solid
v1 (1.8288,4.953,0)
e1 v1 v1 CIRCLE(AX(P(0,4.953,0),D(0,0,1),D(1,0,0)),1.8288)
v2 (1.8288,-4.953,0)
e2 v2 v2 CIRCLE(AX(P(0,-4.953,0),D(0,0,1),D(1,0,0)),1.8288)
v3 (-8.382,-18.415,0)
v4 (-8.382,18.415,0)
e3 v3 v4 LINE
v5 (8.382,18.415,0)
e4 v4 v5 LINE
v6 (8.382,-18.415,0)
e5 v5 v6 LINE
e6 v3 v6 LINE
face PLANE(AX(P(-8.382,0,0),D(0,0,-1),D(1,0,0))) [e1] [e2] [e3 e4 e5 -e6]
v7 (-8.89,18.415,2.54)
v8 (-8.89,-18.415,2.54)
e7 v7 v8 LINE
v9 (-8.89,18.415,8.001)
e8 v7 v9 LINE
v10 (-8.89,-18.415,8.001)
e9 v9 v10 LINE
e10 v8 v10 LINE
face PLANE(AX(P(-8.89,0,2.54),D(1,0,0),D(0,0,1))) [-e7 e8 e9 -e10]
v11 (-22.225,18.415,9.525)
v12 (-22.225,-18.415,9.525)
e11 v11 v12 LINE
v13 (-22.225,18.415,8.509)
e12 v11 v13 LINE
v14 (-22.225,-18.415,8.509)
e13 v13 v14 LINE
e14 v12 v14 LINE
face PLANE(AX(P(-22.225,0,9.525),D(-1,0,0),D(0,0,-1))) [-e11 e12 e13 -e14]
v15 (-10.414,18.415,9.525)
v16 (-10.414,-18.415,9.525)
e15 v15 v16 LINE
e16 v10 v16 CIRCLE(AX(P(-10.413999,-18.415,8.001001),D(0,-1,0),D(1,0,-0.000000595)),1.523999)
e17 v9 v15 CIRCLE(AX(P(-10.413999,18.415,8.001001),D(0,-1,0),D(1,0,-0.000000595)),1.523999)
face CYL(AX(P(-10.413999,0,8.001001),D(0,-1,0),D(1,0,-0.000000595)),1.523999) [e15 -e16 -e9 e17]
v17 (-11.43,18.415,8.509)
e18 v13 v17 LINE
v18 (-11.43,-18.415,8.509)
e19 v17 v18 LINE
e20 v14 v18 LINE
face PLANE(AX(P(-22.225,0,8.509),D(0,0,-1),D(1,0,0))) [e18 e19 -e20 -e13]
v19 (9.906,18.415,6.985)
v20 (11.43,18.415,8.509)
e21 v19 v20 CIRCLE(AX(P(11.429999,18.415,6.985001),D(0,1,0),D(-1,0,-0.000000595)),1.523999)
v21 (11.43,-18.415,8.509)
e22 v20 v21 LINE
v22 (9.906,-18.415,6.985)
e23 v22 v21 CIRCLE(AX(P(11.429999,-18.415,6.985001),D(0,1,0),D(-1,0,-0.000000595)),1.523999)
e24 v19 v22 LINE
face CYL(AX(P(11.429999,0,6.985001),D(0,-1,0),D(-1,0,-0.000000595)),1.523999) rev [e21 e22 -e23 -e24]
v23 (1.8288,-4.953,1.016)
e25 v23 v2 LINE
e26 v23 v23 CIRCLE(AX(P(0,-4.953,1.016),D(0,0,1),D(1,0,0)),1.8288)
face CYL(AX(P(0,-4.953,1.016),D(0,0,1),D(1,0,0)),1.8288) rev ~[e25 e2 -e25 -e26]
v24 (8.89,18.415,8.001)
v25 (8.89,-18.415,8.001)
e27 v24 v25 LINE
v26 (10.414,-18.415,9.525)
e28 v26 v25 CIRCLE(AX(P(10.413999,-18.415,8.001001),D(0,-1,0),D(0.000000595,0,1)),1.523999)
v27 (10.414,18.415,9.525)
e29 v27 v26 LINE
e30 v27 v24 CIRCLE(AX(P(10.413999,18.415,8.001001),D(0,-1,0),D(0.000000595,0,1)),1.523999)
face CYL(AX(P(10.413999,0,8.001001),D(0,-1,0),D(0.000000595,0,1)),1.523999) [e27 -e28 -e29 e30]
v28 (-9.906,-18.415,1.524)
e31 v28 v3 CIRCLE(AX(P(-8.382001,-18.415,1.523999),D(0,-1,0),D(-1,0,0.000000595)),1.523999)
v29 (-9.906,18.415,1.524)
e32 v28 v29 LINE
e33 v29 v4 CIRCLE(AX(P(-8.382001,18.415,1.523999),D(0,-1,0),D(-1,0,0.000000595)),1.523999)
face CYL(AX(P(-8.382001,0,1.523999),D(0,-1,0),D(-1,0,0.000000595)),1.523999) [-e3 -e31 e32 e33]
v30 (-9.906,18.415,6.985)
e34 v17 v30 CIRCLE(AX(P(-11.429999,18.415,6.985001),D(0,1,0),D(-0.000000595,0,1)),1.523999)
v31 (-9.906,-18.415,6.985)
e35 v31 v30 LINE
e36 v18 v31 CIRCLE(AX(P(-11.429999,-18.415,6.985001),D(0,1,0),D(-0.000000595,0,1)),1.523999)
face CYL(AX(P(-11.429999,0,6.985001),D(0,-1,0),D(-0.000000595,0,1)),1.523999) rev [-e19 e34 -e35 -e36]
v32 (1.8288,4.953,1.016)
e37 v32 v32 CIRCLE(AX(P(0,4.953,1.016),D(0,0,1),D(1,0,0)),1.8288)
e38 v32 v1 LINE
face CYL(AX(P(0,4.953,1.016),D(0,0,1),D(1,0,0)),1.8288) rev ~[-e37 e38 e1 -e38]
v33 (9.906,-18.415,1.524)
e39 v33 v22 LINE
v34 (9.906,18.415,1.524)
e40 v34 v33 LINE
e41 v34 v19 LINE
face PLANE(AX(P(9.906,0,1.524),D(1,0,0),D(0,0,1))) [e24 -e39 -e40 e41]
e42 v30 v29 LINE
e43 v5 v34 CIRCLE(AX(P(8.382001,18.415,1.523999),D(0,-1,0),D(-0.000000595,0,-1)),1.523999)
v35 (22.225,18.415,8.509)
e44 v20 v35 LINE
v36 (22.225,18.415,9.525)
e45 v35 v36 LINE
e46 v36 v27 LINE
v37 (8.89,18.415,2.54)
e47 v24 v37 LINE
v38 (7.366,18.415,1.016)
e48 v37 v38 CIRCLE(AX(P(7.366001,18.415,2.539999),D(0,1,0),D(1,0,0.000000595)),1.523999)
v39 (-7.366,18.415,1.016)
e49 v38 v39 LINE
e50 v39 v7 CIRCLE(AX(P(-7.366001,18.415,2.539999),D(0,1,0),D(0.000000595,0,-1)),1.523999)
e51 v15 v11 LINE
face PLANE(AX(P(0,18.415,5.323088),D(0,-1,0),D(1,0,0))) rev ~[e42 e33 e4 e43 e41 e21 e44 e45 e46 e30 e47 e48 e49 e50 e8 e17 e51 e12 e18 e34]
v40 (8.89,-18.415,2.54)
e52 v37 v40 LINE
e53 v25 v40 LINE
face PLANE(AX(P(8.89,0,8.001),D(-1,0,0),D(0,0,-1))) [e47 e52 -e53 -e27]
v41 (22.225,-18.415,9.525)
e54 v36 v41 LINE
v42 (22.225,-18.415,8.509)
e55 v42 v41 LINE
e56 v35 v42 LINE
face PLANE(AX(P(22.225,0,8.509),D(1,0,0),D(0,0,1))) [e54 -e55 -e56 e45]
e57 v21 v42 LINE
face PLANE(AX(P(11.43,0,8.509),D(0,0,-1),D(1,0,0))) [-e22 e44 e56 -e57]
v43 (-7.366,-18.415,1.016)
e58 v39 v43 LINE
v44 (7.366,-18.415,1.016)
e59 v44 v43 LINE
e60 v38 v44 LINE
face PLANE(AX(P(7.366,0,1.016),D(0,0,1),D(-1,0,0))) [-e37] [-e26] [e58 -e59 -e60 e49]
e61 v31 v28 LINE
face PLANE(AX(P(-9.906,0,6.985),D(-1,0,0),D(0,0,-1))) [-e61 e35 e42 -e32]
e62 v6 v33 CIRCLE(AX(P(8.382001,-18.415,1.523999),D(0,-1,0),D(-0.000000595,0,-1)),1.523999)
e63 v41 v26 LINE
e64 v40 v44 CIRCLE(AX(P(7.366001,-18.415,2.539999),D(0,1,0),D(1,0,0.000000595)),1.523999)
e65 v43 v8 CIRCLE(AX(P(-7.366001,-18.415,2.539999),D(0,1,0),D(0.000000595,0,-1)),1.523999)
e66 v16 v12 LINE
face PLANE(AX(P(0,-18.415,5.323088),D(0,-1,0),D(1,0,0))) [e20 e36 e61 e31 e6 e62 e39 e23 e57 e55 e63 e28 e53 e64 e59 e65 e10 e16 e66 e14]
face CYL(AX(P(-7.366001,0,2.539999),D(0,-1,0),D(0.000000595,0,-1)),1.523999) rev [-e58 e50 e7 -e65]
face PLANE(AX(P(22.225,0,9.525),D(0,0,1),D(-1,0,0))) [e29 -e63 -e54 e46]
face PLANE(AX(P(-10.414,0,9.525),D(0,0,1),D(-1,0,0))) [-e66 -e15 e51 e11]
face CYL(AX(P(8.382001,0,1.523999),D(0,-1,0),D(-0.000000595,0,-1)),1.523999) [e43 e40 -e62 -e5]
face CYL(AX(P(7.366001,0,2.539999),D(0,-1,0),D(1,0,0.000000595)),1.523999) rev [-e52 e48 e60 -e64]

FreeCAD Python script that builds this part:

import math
import FreeCAD as App
import Part
import Sketcher

V = App.Vector
Q = App.Units.Quantity

doc = App.newDocument("Part")
body = doc.addObject("PartDesign::Body", "Body")

sketch1 = doc.addObject("Sketcher::SketchObject", "Sketch")
body.addObject(sketch1)
sketch1.AttachmentSupport = (doc.XZ_Plane, [""])
sketch1.MapMode = "FlatFace"
sketch1.addGeometry([
    Part.LineSegment(V(-8.4, 0, 0), V(8.4, 0, 0)),
    Part.ArcOfCircle(Part.Circle(V(8.4, 1.5, 0), V(0, 0, 1), 1.5), math.radians(-90), math.radians(0)),
    Part.LineSegment(V(9.9, 1.5, 0), V(9.9, 7, 0)),
    Part.ArcOfCircle(Part.Circle(V(11.4, 7, 0), V(0, 0, 1), 1.5), math.radians(90), math.radians(180)),
    Part.LineSegment(V(11.4, 8.5, 0), V(22.2, 8.5, 0)),
    Part.LineSegment(V(22.2, 8.5, 0), V(22.2, 9.5, 0)),
    Part.LineSegment(V(22.2, 9.5, 0), V(10.4, 9.5, 0)),
    Part.ArcOfCircle(Part.Circle(V(10.4, 8, 0), V(0, 0, 1), 1.5), math.radians(90), math.radians(180)),
    Part.LineSegment(V(8.9, 8, 0), V(8.9, 2.5, 0)),
    Part.ArcOfCircle(Part.Circle(V(7.4, 2.5, 0), V(0, 0, 1), 1.5), math.radians(-90), math.radians(0)),
    Part.LineSegment(V(7.4, 1, 0), V(-7.4, 1, 0)),
    Part.ArcOfCircle(Part.Circle(V(-7.4, 2.5, 0), V(0, 0, 1), 1.5), math.radians(180), math.radians(270)),
    Part.LineSegment(V(-8.9, 2.5, 0), V(-8.9, 8, 0)),
    Part.ArcOfCircle(Part.Circle(V(-10.4, 8, 0), V(0, 0, 1), 1.5), math.radians(0), math.radians(90)),
    Part.LineSegment(V(-10.4, 9.5, 0), V(-22.2, 9.5, 0)),
    Part.LineSegment(V(-22.2, 9.5, 0), V(-22.2, 8.5, 0)),
    Part.LineSegment(V(-22.2, 8.5, 0), V(-11.4, 8.5, 0)),
    Part.ArcOfCircle(Part.Circle(V(-11.4, 7, 0), V(0, 0, 1), 1.5), math.radians(0), math.radians(90)),
    Part.LineSegment(V(-9.9, 7, 0), V(-9.9, 1.5, 0)),
    Part.ArcOfCircle(Part.Circle(V(-8.4, 1.5, 0), V(0, 0, 1), 1.5), math.radians(180), math.radians(270)),
], False)
sketch1.addConstraint([
    Sketcher.Constraint("Tangent", 0, 2, 1, 1),
    Sketcher.Constraint("Tangent", 1, 2, 2, 1),
    Sketcher.Constraint("Tangent", 2, 2, 3, 2),
    Sketcher.Constraint("Tangent", 3, 1, 4, 1),
    Sketcher.Constraint("Coincident", 4, 2, 5, 1),
    Sketcher.Constraint("Coincident", 5, 2, 6, 1),
    Sketcher.Constraint("Tangent", 6, 2, 7, 1),
    Sketcher.Constraint("Tangent", 7, 2, 8, 1),
    Sketcher.Constraint("Tangent", 8, 2, 9, 2),
    Sketcher.Constraint("Tangent", 9, 1, 10, 1),
    Sketcher.Constraint("Tangent", 10, 2, 11, 2),
    Sketcher.Constraint("Tangent", 11, 1, 12, 1),
    Sketcher.Constraint("Tangent", 12, 2, 13, 1),
    Sketcher.Constraint("Tangent", 13, 2, 14, 1),
    Sketcher.Constraint("Coincident", 14, 2, 15, 1),
    Sketcher.Constraint("Coincident", 15, 2, 16, 1),
    Sketcher.Constraint("Tangent", 16, 2, 17, 2),
    Sketcher.Constraint("Tangent", 17, 1, 18, 1),
    Sketcher.Constraint("Tangent", 18, 2, 19, 1),
    Sketcher.Constraint("Tangent", 19, 2, 0, 1),
    Sketcher.Constraint("Horizontal", 0),
    Sketcher.Constraint("Vertical", 2),
    Sketcher.Constraint("Horizontal", 4),
    Sketcher.Constraint("Vertical", 5),
    Sketcher.Constraint("Horizontal", 6),
    Sketcher.Constraint("Vertical", 8),
    Sketcher.Constraint("Horizontal", 10),
    Sketcher.Constraint("Vertical", 12),
    Sketcher.Constraint("Horizontal", 14),
    Sketcher.Constraint("Vertical", 15),
    Sketcher.Constraint("Horizontal", 16),
    Sketcher.Constraint("Vertical", 18),
    Sketcher.Constraint("Equal", 1, 3),
    Sketcher.Constraint("Equal", 3, 7),
    Sketcher.Constraint("Equal", 7, 9),
    Sketcher.Constraint("Equal", 9, 11),
    Sketcher.Constraint("Equal", 11, 13),
    Sketcher.Constraint("Equal", 13, 17),
    Sketcher.Constraint("Equal", 17, 19),
    Sketcher.Constraint("Symmetric", 0, 2, 19, 2, -1, 1),
    Sketcher.Constraint("Symmetric", 7, 3, 13, 3, -2),
    Sketcher.Constraint("Symmetric", 4, 2, 15, 2, -2),
    Sketcher.Constraint("Equal", 2, 8),
    Sketcher.Constraint("Radius", 1, Q("0.06 in")),
    Sketcher.Constraint("DistanceX", 0, 1, 0, 2, Q("0.66 in")),
    Sketcher.Constraint("DistanceX", 10, 2, 10, 1, Q("0.58 in")),
    Sketcher.Constraint("DistanceY", 5, 1, 5, 2, Q("0.04 in")),
    Sketcher.Constraint("DistanceX", 4, 1, 4, 2, Q("0.425 in")),
    Sketcher.Constraint("DistanceY", 2, 1, 2, 2, Q("0.215 in")),
])
pad1 = doc.addObject("PartDesign::Pad", "Pad")
body.addObject(pad1)
pad1.Profile = sketch1
pad1.Length = Q("1.45 in")
pad1.Midplane = True

sketch2 = doc.addObject("Sketcher::SketchObject", "Sketch001")
body.addObject(sketch2)
sketch2.AttachmentSupport = (doc.XY_Plane, [""])
sketch2.MapMode = "FlatFace"
sketch2.AttachmentOffset = App.Placement(V(0, 0, 0.04 * 25.4), App.Rotation())
sketch2.addGeometry([
    Part.Circle(V(0, -5, 0), V(0, 0, 1), 1.8),
    Part.Circle(V(0, 5, 0), V(0, 0, 1), 1.8),
], False)
sketch2.addConstraint([
    Sketcher.Constraint("Equal", 0, 1),
    Sketcher.Constraint("Symmetric", 0, 3, 1, 3, -1, 1),
    Sketcher.Constraint("PointOnObject", 0, 3, -2),
    Sketcher.Constraint("Diameter", 0, Q("0.144 in")),
    Sketcher.Constraint("DistanceY", 0, 3, 1, 3, Q("0.39 in")),
])
pocket1 = doc.addObject("PartDesign::Pocket", "Pocket")
body.addObject(pocket1)
pocket1.Profile = sketch2
pocket1.Length = Q("1 in")

doc.recompute()
